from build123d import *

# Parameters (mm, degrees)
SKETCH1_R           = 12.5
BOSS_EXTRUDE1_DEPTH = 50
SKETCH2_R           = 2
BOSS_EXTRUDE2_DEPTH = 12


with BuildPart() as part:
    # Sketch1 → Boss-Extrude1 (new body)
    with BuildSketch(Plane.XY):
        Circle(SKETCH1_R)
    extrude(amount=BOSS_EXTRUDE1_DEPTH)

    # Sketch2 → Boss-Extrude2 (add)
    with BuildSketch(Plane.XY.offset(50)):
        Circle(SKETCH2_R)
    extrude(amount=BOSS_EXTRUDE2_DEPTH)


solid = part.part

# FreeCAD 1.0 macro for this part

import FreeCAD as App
import Part
import Sketcher
from FreeCAD import Vector

doc = App.newDocument("Part")
body = doc.addObject("PartDesign::Body", "Body")

sketch1 = doc.addObject("Sketcher::SketchObject", "Sketch")
body.addObject(sketch1)
sketch1.AttachmentSupport = (doc.XY_Plane, [""])
sketch1.MapMode = "FlatFace"
sketch1.addGeometry(Part.Circle(Vector(0, 0, 0), Vector(0, 0, 1), 12.5), False)
sketch1.addConstraint([
    Sketcher.Constraint("Coincident", 0, 3, -1, 1),
    Sketcher.Constraint("Diameter", 0, 25.0),
])
pad1 = doc.addObject("PartDesign::Pad", "Pad")
body.addObject(pad1)
pad1.Profile = sketch1
pad1.Length = 50

sketch2 = doc.addObject("Sketcher::SketchObject", "Sketch001")
body.addObject(sketch2)
sketch2.AttachmentSupport = (doc.XY_Plane, [""])
sketch2.MapMode = "FlatFace"
sketch2.AttachmentOffset = App.Placement(Vector(0, 0, 50), App.Rotation())
sketch2.addGeometry(Part.Circle(Vector(0, 0, 0), Vector(0, 0, 1), 2), False)
sketch2.addConstraint([
    Sketcher.Constraint("Coincident", 0, 3, -1, 1),
    Sketcher.Constraint("Diameter", 0, 4.0),
])
pad2 = doc.addObject("PartDesign::Pad", "Pad001")
body.addObject(pad2)
pad2.Profile = sketch2
pad2.Length = 12

doc.recompute()
